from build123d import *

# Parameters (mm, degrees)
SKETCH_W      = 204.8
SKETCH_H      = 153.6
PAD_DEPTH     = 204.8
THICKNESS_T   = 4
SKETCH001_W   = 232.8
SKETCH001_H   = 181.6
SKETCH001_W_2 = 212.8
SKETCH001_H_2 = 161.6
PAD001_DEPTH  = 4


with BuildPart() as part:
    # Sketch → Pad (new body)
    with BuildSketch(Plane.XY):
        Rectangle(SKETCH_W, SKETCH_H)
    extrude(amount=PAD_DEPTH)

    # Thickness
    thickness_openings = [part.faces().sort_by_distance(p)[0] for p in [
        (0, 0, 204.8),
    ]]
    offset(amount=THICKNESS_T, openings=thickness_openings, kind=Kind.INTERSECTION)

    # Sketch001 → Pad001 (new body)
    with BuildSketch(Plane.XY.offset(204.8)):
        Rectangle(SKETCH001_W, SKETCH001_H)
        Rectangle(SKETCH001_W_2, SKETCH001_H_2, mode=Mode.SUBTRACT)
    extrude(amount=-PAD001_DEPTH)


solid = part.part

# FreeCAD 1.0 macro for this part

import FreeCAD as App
import Part
import Sketcher
from FreeCAD import Vector


def faces_at(feature, points):
    """Names of the faces that lie closest to the given points."""
    faces = feature.Shape.Faces
    near = lambda p: min(range(len(faces)), key=lambda i: faces[i].distToShape(Part.Vertex(*p))[0])
    return sorted({f"Face{near(p) + 1}" for p in points})


def add_polygon(sketch, points):
    """Adds a closed chain of lines whose ends are joined by coincident constraints."""
    first, n = sketch.GeometryCount, len(points)
    for a, b in zip(points, points[1:] + points[:1]):
        sketch.addGeometry(Part.LineSegment(App.Vector(*a, 0), App.Vector(*b, 0)), False)
    for i in range(n):
        sketch.addConstraint(Sketcher.Constraint("Coincident", first + i, 2, first + (i + 1) % n, 1))

doc = App.newDocument("Part")
params = doc.addObject("Spreadsheet::Sheet", "Params")
for row, (alias, value) in enumerate([
    ("sketch1_width", "204.8 mm"),
    ("sketch1_height", "153.6 mm"),
    ("pad1_length", "204.8 mm"),
    ("thickness_wall", "4 mm"),
    ("sketch2_width", "232.8 mm"),
    ("sketch2_width2", "212.8 mm"),
    ("sketch2_height", "181.6 mm"),
    ("sketch2_height2", "161.6 mm"),
    ("pad2_length", "4 mm"),
], start=1):
    params.set(f"A{row}", alias)
    params.set(f"B{row}", "=" + value)
    params.setAlias(f"B{row}", alias)

body = doc.addObject("PartDesign::Body", "Body")

# Sketch on XY plane
sketch1 = doc.addObject("Sketcher::SketchObject", "Sketch")
body.addObject(sketch1)
sketch1.AttachmentSupport = (doc.XY_Plane, [""])
sketch1.MapMode = "FlatFace"
add_polygon(sketch1, [(-102.4, 76.8), (-102.4, -76.8), (102.4, -76.8), (102.4, 76.8)])  # lines 0-3
sketch1.addConstraint(Sketcher.Constraint("Vertical", 0))
sketch1.addConstraint(Sketcher.Constraint("Horizontal", 1))
sketch1.addConstraint(Sketcher.Constraint("Vertical", 2))
sketch1.addConstraint(Sketcher.Constraint("Horizontal", 3))
sketch1.addConstraint(Sketcher.Constraint("Symmetric", 0, 2, 2, 2, -1, 1))
sketch1.addConstraint(Sketcher.Constraint("DistanceX", 1, 1, 1, 2, 204.8))
sketch1.addConstraint(Sketcher.Constraint("DistanceY", 0, 2, 0, 1, 153.6))
sketch1.setExpression("Constraints[9]", "Params.sketch1_width")
sketch1.setExpression("Constraints[10]", "Params.sketch1_height")
pad1 = doc.addObject("PartDesign::Pad", "Pad")
body.addObject(pad1)
pad1.Profile = sketch1
pad1.setExpression("Length", "Params.pad1_length")
doc.recompute()

thickness = doc.addObject("PartDesign::Thickness", "Thickness")
body.addObject(thickness)
thickness.Base = (pad1, faces_at(pad1, [(0, 0, 204.8)]))
thickness.setExpression("Value", "Params.thickness_wall")
thickness.Reversed = False
thickness.Join = "Intersection"

# Sketch on XY plane
sketch2 = doc.addObject("Sketcher::SketchObject", "Sketch001")
body.addObject(sketch2)
sketch2.AttachmentSupport = (doc.XY_Plane, [""])
sketch2.MapMode = "FlatFace"
sketch2.AttachmentOffset = App.Placement(Vector(0, 0, 204.8), App.Rotation())
add_polygon(sketch2, [(-116.4, 90.8), (-116.4, -90.8), (116.4, -90.8), (116.4, 90.8)])  # lines 0-3
add_polygon(sketch2, [(106.4, -80.8), (-106.4, -80.8), (-106.4, 80.8), (106.4, 80.8)])  # lines 4-7
sketch2.addConstraint(Sketcher.Constraint("Vertical", 0))
sketch2.addConstraint(Sketcher.Constraint("Horizontal", 1))
sketch2.addConstraint(Sketcher.Constraint("Vertical", 2))
sketch2.addConstraint(Sketcher.Constraint("Horizontal", 3))
sketch2.addConstraint(Sketcher.Constraint("Horizontal", 4))
sketch2.addConstraint(Sketcher.Constraint("Vertical", 5))
sketch2.addConstraint(Sketcher.Constraint("Horizontal", 6))
sketch2.addConstraint(Sketcher.Constraint("Vertical", 7))
sketch2.addConstraint(Sketcher.Constraint("Symmetric", 0, 2, 2, 2, -1, 1))
sketch2.addConstraint(Sketcher.Constraint("Symmetric", 4, 2, 6, 2, -1, 1))
sketch2.addConstraint(Sketcher.Constraint("DistanceX", 1, 1, 1, 2, 232.8))
sketch2.addConstraint(Sketcher.Constraint("DistanceX", 4, 2, 4, 1, 212.8))
sketch2.addConstraint(Sketcher.Constraint("DistanceY", 0, 2, 0, 1, 181.6))
sketch2.addConstraint(Sketcher.Constraint("DistanceY", 5, 1, 5, 2, 161.6))
sketch2.setExpression("Constraints[18]", "Params.sketch2_width")
sketch2.setExpression("Constraints[19]", "Params.sketch2_width2")
sketch2.setExpression("Constraints[20]", "Params.sketch2_height")
sketch2.setExpression("Constraints[21]", "Params.sketch2_height2")
pad2 = doc.addObject("PartDesign::Pad", "Pad001")
body.addObject(pad2)
pad2.Profile = sketch2
pad2.setExpression("Length", "Params.pad2_length")
pad2.Reversed = True

doc.recompute()
